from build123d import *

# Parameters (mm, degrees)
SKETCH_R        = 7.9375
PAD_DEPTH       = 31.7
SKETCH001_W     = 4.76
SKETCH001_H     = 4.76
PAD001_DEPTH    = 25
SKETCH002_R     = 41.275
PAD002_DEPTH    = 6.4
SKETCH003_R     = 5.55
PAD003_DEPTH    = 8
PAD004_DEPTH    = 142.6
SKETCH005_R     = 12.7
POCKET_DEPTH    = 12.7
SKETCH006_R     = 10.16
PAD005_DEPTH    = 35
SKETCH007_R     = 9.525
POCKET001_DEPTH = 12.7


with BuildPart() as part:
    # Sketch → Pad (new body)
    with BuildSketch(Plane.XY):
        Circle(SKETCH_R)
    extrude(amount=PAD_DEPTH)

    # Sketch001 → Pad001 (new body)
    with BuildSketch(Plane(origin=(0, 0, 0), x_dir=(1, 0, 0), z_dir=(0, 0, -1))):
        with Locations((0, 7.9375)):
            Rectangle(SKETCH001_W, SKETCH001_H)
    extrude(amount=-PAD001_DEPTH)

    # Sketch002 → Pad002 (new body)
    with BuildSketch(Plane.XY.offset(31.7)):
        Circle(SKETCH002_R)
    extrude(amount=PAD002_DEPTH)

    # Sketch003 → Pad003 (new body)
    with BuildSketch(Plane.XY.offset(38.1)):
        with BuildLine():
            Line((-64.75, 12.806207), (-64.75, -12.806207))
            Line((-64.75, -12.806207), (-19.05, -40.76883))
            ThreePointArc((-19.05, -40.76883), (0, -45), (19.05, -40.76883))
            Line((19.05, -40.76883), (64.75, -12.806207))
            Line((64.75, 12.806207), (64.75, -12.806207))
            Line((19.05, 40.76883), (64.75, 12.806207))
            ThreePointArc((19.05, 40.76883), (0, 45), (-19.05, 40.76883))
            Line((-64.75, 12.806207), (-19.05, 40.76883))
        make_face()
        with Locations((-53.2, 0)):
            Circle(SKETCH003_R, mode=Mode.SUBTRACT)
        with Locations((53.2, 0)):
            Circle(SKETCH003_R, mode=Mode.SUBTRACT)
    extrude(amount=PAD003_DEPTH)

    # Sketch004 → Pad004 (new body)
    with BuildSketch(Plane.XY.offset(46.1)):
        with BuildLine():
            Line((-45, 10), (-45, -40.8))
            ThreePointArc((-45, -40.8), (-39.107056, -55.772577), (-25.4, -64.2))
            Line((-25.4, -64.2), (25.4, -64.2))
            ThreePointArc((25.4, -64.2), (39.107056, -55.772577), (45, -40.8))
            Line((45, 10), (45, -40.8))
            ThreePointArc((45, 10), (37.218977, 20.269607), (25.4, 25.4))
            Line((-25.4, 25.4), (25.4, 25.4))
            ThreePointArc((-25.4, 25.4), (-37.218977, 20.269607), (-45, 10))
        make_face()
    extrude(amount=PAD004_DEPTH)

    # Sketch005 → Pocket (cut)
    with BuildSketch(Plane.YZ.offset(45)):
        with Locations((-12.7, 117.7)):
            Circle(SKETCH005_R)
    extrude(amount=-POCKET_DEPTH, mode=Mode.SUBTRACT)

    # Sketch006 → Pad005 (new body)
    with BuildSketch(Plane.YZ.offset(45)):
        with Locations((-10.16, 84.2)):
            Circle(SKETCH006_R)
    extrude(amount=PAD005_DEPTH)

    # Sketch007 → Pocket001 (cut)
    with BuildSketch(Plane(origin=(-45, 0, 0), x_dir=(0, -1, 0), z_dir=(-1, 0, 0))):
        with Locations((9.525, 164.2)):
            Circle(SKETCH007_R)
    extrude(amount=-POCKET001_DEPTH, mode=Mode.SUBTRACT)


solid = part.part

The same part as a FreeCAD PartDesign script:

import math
import FreeCAD as App
import Part
import Sketcher

V = App.Vector

doc = App.newDocument("Part")
body = doc.addObject("PartDesign::Body", "Body")

sketch1 = doc.addObject("Sketcher::SketchObject", "Sketch")
body.addObject(sketch1)
sketch1.AttachmentSupport = (doc.XY_Plane, [""])
sketch1.MapMode = "FlatFace"
sketch1.addGeometry(Part.Circle(V(0, 0, 0), V(0, 0, 1), 8), False)
sketch1.addConstraint([
    Sketcher.Constraint("Coincident", 0, 3, -1, 1),
    Sketcher.Constraint("Diameter", 0, 15.875),
])
pad1 = doc.addObject("PartDesign::Pad", "Pad")
body.addObject(pad1)
pad1.Profile = sketch1
pad1.Length = 31.7

sketch2 = doc.addObject("Sketcher::SketchObject", "Sketch001")
body.addObject(sketch2)
sketch2.AttachmentSupport = (doc.XY_Plane, [""])
sketch2.MapMode = "FlatFace"
sketch2.addGeometry([
    Part.LineSegment(V(-2.4, -10.3, 0), V(-2.4, -5.6, 0)),
    Part.LineSegment(V(-2.4, -5.6, 0), V(2.4, -5.6, 0)),
    Part.LineSegment(V(2.4, -5.6, 0), V(2.4, -10.3, 0)),
    Part.LineSegment(V(2.4, -10.3, 0), V(-2.4, -10.3, 0)),
], False)
sketch2.addConstraint([
    Sketcher.Constraint("Coincident", 0, 2, 1, 1),
    Sketcher.Constraint("Coincident", 1, 2, 2, 1),
    Sketcher.Constraint("Coincident", 2, 2, 3, 1),
    Sketcher.Constraint("Coincident", 3, 2, 0, 1),
    Sketcher.Constraint("Vertical", 0),
    Sketcher.Constraint("Horizontal", 1),
    Sketcher.Constraint("Vertical", 2),
    Sketcher.Constraint("Horizontal", 3),
    Sketcher.Constraint("Equal", 3, 0),
    Sketcher.Constraint("DistanceX", 1, 1, 1, 2, 4.76),
    Sketcher.Constraint("DistanceX", 0, 2, -1, 1, 2.38),
    Sketcher.Constraint("DistanceY", 0, 2, -1, 1, 5.5575),
])
pad2 = doc.addObject("PartDesign::Pad", "Pad001")
body.addObject(pad2)
pad2.Profile = sketch2
pad2.Length = 25

sketch3 = doc.addObject("Sketcher::SketchObject", "Sketch002")
body.addObject(sketch3)
sketch3.AttachmentSupport = (doc.XY_Plane, [""])
sketch3.MapMode = "FlatFace"
sketch3.AttachmentOffset = App.Placement(V(0, 0, 31.7), App.Rotation())
sketch3.addGeometry(Part.Circle(V(0, 0, 0), V(0, 0, 1), 41), False)
sketch3.addConstraint([
    Sketcher.Constraint("Coincident", 0, 3, -1, 1),
    Sketcher.Constraint("Diameter", 0, 82.55),
])
pad3 = doc.addObject("PartDesign::Pad", "Pad002")
body.addObject(pad3)
pad3.Profile = sketch3
pad3.Length = 6.4

sketch4 = doc.addObject("Sketcher::SketchObject", "Sketch003")
body.addObject(sketch4)
sketch4.AttachmentSupport = (doc.XY_Plane, [""])
sketch4.MapMode = "FlatFace"
sketch4.AttachmentOffset = App.Placement(V(0, 0, 38.1), App.Rotation())
sketch4.addGeometry([
    Part.LineSegment(V(-65, 13, 0), V(-65, -13, 0)),
    Part.LineSegment(V(-65, -13, 0), V(-19, -41, 0)),
    Part.ArcOfCircle(Part.Circle(V(0, 0, 0), V(0, 0, 1), 45), math.radians(-115), math.radians(-65)),
    Part.LineSegment(V(19, -41, 0), V(65, -13, 0)),
    Part.LineSegment(V(65, -13, 0), V(65, 13, 0)),
    Part.LineSegment(V(65, 13, 0), V(19, 41, 0)),
    Part.ArcOfCircle(Part.Circle(V(0, 0, 0), V(0, 0, 1), 45), math.radians(65), math.radians(115)),
    Part.LineSegment(V(-19, 41, 0), V(-65, 13, 0)),
    Part.Circle(V(-53, 0, 0), V(0, 0, 1), 6),
    Part.Circle(V(53, 0, 0), V(0, 0, 1), 6),
], False)
sketch4.addConstraint([
    Sketcher.Constraint("Coincident", 0, 2, 1, 1),
    Sketcher.Constraint("Coincident", 1, 2, 2, 1),
    Sketcher.Constraint("Coincident", 2, 2, 3, 1),
    Sketcher.Constraint("Coincident", 3, 2, 4, 1),
    Sketcher.Constraint("Coincident", 4, 2, 5, 1),
    Sketcher.Constraint("Coincident", 5, 2, 6, 1),
    Sketcher.Constraint("Coincident", 6, 2, 7, 1),
    Sketcher.Constraint("Coincident", 7, 2, 0, 1),
    Sketcher.Constraint("Vertical", 0),
    Sketcher.Constraint("Vertical", 4),
    Sketcher.Constraint("Coincident", 2, 3, -1, 1),
    Sketcher.Constraint("Coincident", 6, 3, -1, 1),
    Sketcher.Constraint("Equal", 2, 6),
    Sketcher.Constraint("Equal", 8, 9),
    Sketcher.Constraint("Symmetric", 8, 3, 9, 3, -1, 1),
    Sketcher.Constraint("Symmetric", 0, 2, 4, 2, -1, 1),
    Sketcher.Constraint("PointOnObject", 8, 3, -1),
    Sketcher.Constraint("Parallel", 1, 5),
    Sketcher.Constraint("Parallel", 3, 7),
    Sketcher.Constraint("Horizontal", 1, 2, 2, 2),
    Sketcher.Constraint("Horizontal", 0, 2, 3, 2),
    Sketcher.Constraint("Horizontal", 5, 2, 6, 2),
    Sketcher.Constraint("Radius", 2, 45.0),
    Sketcher.Constraint("Diameter", 8, 11.1),
    Sketcher.Constraint("DistanceX", 8, 3, -1, 1, 53.2),
    Sketcher.Constraint("DistanceX", 0, 2, 1, 2, 45.7),
    Sketcher.Constraint("DistanceX", 1, 2, 2, 2, 38.1),
    Sketcher.Constraint("Distance", 1, 53.576098),
])
pad4 = doc.addObject("PartDesign::Pad", "Pad003")
body.addObject(pad4)
pad4.Profile = sketch4
pad4.Length = 8

sketch5 = doc.addObject("Sketcher::SketchObject", "Sketch004")
body.addObject(sketch5)
sketch5.AttachmentSupport = (doc.XY_Plane, [""])
sketch5.MapMode = "FlatFace"
sketch5.AttachmentOffset = App.Placement(V(0, 0, 46.1), App.Rotation())
sketch5.addGeometry([
    Part.LineSegment(V(-45, 10, 0), V(-45, -41, 0)),
    Part.ArcOfCircle(Part.Circle(V(-20, -39, 0), V(0, 0, 1), 25), math.radians(-177), math.radians(-103)),
    Part.LineSegment(V(-25, -64, 0), V(25, -64, 0)),
    Part.ArcOfCircle(Part.Circle(V(20, -39, 0), V(0, 0, 1), 25), math.radians(-77), math.radians(-3)),
    Part.LineSegment(V(45, -41, 0), V(45, 10, 0)),
    Part.ArcOfCircle(Part.Circle(V(22, 0, 0), V(0, 0, 1), 25), math.radians(22), math.radians(81)),
    Part.LineSegment(V(25, 25, 0), V(-25, 25, 0)),
    Part.ArcOfCircle(Part.Circle(V(-22, 0, 0), V(0, 0, 1), 25), math.radians(99), math.radians(158)),
], False)
sketch5.addConstraint([
    Sketcher.Constraint("Coincident", 0, 2, 1, 1),
    Sketcher.Constraint("Coincident", 1, 2, 2, 1),
    Sketcher.Constraint("Coincident", 2, 2, 3, 1),
    Sketcher.Constraint("Coincident", 3, 2, 4, 1),
    Sketcher.Constraint("Coincident", 4, 2, 5, 1),
    Sketcher.Constraint("Coincident", 5, 2, 6, 1),
    Sketcher.Constraint("Coincident", 6, 2, 7, 1),
    Sketcher.Constraint("Coincident", 7, 2, 0, 1),
    Sketcher.Constraint("Vertical", 0),
    Sketcher.Constraint("Horizontal", 2),
    Sketcher.Constraint("Vertical", 4),
    Sketcher.Constraint("Horizontal", 6),
    Sketcher.Constraint("Equal", 1, 3),
    Sketcher.Constraint("Equal", 3, 5),
    Sketcher.Constraint("Equal", 5, 7),
    Sketcher.Constraint("Symmetric", 1, 3, 3, 3, -2),
    Sketcher.Constraint("Symmetric", 5, 3, 7, 3, -2),
    Sketcher.Constraint("Horizontal", 0, 2, 3, 2),
    Sketcher.Constraint("Vertical", 2, 2, 5, 2),
    Sketcher.Constraint("Equal", 6, 0),
    Sketcher.Constraint("Radius", 1, 25.399998),
    Sketcher.Constraint("DistanceX", 2, 1, 2, 2, 50.8),
    Sketcher.Constraint("DistanceX", 0, 2, -1, 1, 45.0),
    Sketcher.Constraint("DistanceY", -1, 1, 4, 2, 10.0),
    Sketcher.Constraint("DistanceY", 1, 2, -1, 1, 64.2),
    Sketcher.Constraint("DistanceY", -1, 1, 5, 2, 25.4),
])
pad5 = doc.addObject("PartDesign::Pad", "Pad004")
body.addObject(pad5)
pad5.Profile = sketch5
pad5.Length = 142.6

sketch6 = doc.addObject("Sketcher::SketchObject", "Sketch005")
body.addObject(sketch6)
sketch6.AttachmentSupport = (doc.YZ_Plane, [""])
sketch6.MapMode = "FlatFace"
sketch6.AttachmentOffset = App.Placement(V(0, 0, 45), App.Rotation())
sketch6.addGeometry(Part.Circle(V(-13, 118, 0), V(0, 0, 1), 13), False)
sketch6.addConstraint([
    Sketcher.Constraint("Diameter", 0, 25.4),
    Sketcher.Constraint("DistanceX", 0, 3, -1, 1, 12.7),
    Sketcher.Constraint("DistanceY", -1, 1, 0, 3, 117.7),
])
pocket1 = doc.addObject("PartDesign::Pocket", "Pocket")
body.addObject(pocket1)
pocket1.Profile = sketch6
pocket1.Length = 12.7

sketch7 = doc.addObject("Sketcher::SketchObject", "Sketch006")
body.addObject(sketch7)
sketch7.AttachmentSupport = (doc.YZ_Plane, [""])
sketch7.MapMode = "FlatFace"
sketch7.AttachmentOffset = App.Placement(V(0, 0, 45), App.Rotation())
sketch7.addGeometry(Part.Circle(V(-10, 84, 0), V(0, 0, 1), 10), False)
sketch7.addConstraint([
    Sketcher.Constraint("Diameter", 0, 20.32),
    Sketcher.Constraint("DistanceY", -1, 1, 0, 3, 84.2),
    Sketcher.Constraint("DistanceX", 0, 3, -1, 1, 10.16),
])
pad6 = doc.addObject("PartDesign::Pad", "Pad005")
body.addObject(pad6)
pad6.Profile = sketch7
pad6.Length = 35

sketch8 = doc.addObject("Sketcher::SketchObject", "Sketch007")
body.addObject(sketch8)
sketch8.AttachmentSupport = (doc.YZ_Plane, [""])
sketch8.MapMode = "FlatFace"
sketch8.AttachmentOffset = App.Placement(V(0, 0, -45), App.Rotation())
sketch8.addGeometry(Part.Circle(V(-10, 164, 0), V(0, 0, 1), 10), False)
sketch8.addConstraint([
    Sketcher.Constraint("Diameter", 0, 19.05),
    Sketcher.Constraint("DistanceY", -1, 1, 0, 3, 164.2),
    Sketcher.Constraint("DistanceX", 0, 3, -1, 1, 9.525),
])
pocket2 = doc.addObject("PartDesign::Pocket", "Pocket001")
body.addObject(pocket2)
pocket2.Profile = sketch8
pocket2.Length = 12.7
pocket2.Reversed = True

doc.recompute()
